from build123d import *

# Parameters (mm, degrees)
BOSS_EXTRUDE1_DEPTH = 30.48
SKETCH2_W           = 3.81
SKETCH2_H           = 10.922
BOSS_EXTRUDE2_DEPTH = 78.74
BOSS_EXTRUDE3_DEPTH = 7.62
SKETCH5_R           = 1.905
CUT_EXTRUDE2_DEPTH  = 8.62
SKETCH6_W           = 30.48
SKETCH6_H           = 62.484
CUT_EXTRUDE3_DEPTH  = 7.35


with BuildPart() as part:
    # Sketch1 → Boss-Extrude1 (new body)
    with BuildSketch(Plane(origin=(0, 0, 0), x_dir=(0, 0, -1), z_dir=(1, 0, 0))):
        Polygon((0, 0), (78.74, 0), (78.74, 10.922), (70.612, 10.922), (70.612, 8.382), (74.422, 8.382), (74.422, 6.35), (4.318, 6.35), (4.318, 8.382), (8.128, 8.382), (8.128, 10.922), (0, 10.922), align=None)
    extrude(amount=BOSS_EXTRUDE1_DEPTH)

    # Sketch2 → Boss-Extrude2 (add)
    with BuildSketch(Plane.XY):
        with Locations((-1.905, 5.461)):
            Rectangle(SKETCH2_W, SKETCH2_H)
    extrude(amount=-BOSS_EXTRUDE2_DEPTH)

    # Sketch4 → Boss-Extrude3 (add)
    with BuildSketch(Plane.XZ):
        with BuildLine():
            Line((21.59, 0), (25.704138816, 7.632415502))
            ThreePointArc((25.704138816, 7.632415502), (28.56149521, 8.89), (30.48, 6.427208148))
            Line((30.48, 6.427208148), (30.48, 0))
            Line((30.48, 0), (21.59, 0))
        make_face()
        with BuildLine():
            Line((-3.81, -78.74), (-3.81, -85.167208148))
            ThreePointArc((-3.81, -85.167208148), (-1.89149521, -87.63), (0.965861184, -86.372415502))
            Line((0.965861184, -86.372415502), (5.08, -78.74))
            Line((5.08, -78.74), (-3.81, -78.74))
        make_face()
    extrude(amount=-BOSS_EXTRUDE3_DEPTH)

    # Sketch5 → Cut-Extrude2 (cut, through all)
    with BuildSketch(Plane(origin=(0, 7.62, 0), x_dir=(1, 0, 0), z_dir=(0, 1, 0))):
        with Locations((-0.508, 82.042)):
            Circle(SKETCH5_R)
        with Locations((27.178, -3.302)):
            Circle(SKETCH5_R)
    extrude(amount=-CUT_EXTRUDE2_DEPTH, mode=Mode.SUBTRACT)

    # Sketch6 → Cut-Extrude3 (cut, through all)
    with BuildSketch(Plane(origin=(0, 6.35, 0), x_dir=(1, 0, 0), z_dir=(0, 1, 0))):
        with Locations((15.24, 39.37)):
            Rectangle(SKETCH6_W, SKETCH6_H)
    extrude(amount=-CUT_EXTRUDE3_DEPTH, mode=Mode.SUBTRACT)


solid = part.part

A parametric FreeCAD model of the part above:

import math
import FreeCAD as App
import Part
import Sketcher
from FreeCAD import Vector
Q = App.Units.Quantity


def add_polygon(sketch, points):
    """Adds a closed chain of lines whose ends are joined by coincident constraints."""
    first, n = sketch.GeometryCount, len(points)
    for a, b in zip(points, points[1:] + points[:1]):
        sketch.addGeometry(Part.LineSegment(App.Vector(*a, 0), App.Vector(*b, 0)), False)
    for i in range(n):
        sketch.addConstraint(Sketcher.Constraint("Coincident", first + i, 2, first + (i + 1) % n, 1))

doc = App.newDocument("Part")
body = doc.addObject("PartDesign::Body", "Body")

# Sketch on YZ plane
sketch1 = doc.addObject("Sketcher::SketchObject", "Sketch")
body.addObject(sketch1)
sketch1.AttachmentSupport = (doc.YZ_Plane, [""])
sketch1.MapMode = "FlatFace"
add_polygon(sketch1, [(0, 0), (0, -78.7), (10.9, -78.7), (10.9, -70.6), (8.4, -70.6), (8.4, -74.4), (6.3, -74.4), (6.3, -4.3), (8.4, -4.3), (8.4, -8.1), (10.9, -8.1), (10.9, 0)])  # lines 0-11
sketch1.addConstraint(Sketcher.Constraint("Vertical", 0))
sketch1.addConstraint(Sketcher.Constraint("Horizontal", 1))
sketch1.addConstraint(Sketcher.Constraint("Vertical", 2))
sketch1.addConstraint(Sketcher.Constraint("Horizontal", 3))
sketch1.addConstraint(Sketcher.Constraint("Vertical", 4))
sketch1.addConstraint(Sketcher.Constraint("Horizontal", 5))
sketch1.addConstraint(Sketcher.Constraint("Vertical", 6))
sketch1.addConstraint(Sketcher.Constraint("Horizontal", 7))
sketch1.addConstraint(Sketcher.Constraint("Vertical", 8))
sketch1.addConstraint(Sketcher.Constraint("Horizontal", 9))
sketch1.addConstraint(Sketcher.Constraint("Vertical", 10))
sketch1.addConstraint(Sketcher.Constraint("Horizontal", 11))
sketch1.addConstraint(Sketcher.Constraint("Coincident", 11, 2, -1, 1))
sketch1.addConstraint(Sketcher.Constraint("Vertical", 4, 2, 7, 2))
sketch1.addConstraint(Sketcher.Constraint("Vertical", 2, 2, 9, 2))
sketch1.addConstraint(Sketcher.Constraint("Equal", 4, 8))
sketch1.addConstraint(Sketcher.Constraint("Equal", 2, 10))
sketch1.addConstraint(Sketcher.Constraint("DistanceX", 3, 2, 3, 1, Q("0.1 in")))
sketch1.addConstraint(Sketcher.Constraint("DistanceY", 0, 2, 0, 1, Q("3.1 in")))
sketch1.addConstraint(Sketcher.Constraint("DistanceX", 1, 1, 1, 2, Q("0.43 in")))
sketch1.addConstraint(Sketcher.Constraint("DistanceX", 5, 2, 5, 1, Q("0.08 in")))
sketch1.addConstraint(Sketcher.Constraint("DistanceY", 2, 1, 2, 2, Q("0.32 in")))
sketch1.addConstraint(Sketcher.Constraint("DistanceY", 4, 2, 4, 1, Q("0.15 in")))
pad1 = doc.addObject("PartDesign::Pad", "Pad")
body.addObject(pad1)
pad1.Profile = sketch1
pad1.Length = Q("1.2 in")

# Sketch on XY plane
sketch2 = doc.addObject("Sketcher::SketchObject", "Sketch001")
body.addObject(sketch2)
sketch2.AttachmentSupport = (doc.XY_Plane, [""])
sketch2.MapMode = "FlatFace"
add_polygon(sketch2, [(-3.8, 10.9), (-3.8, 0), (0, 0), (0, 10.9)])  # lines 0-3
sketch2.addConstraint(Sketcher.Constraint("Vertical", 0))
sketch2.addConstraint(Sketcher.Constraint("Horizontal", 1))
sketch2.addConstraint(Sketcher.Constraint("Vertical", 2))
sketch2.addConstraint(Sketcher.Constraint("Horizontal", 3))
sketch2.addConstraint(Sketcher.Constraint("Coincident", 1, 2, -1, 1))
sketch2.addConstraint(Sketcher.Constraint("DistanceX", 1, 1, 1, 2, Q("0.15 in")))
sketch2.addConstraint(Sketcher.Constraint("DistanceY", 0, 2, 0, 1, Q("0.43 in")))
pad2 = doc.addObject("PartDesign::Pad", "Pad001")
body.addObject(pad2)
pad2.Profile = sketch2
pad2.Length = Q("3.1 in")
pad2.Reversed = True

# Sketch on XZ plane
sketch3 = doc.addObject("Sketcher::SketchObject", "Sketch002")
body.addObject(sketch3)
sketch3.AttachmentSupport = (doc.XZ_Plane, [""])
sketch3.MapMode = "FlatFace"
sketch3.addGeometry(Part.LineSegment(Vector(25.7, 7.6, 0), Vector(21.6, 0, 0)), False)
sketch3.addGeometry(Part.LineSegment(Vector(21.6, 0, 0), Vector(30.5, 0, 0)), False)
sketch3.addGeometry(Part.LineSegment(Vector(30.5, 0, 0), Vector(30.5, 6.4, 0)), False)
sketch3.addGeometry(Part.ArcOfCircle(Part.Circle(Vector(27.9, 6.4, 0), Vector(0, 0, 1), 2.5), math.radians(0), math.radians(152)), False)
sketch3.addGeometry(Part.LineSegment(Vector(-3.8, -78.7, 0), Vector(-3.8, -85.2, 0)), False)
sketch3.addGeometry(Part.ArcOfCircle(Part.Circle(Vector(-1.3, -85.2, 0), Vector(0, 0, 1), 2.5), math.radians(180), math.radians(332)), False)
sketch3.addGeometry(Part.LineSegment(Vector(1, -86.4, 0), Vector(5.1, -78.7, 0)), False)
sketch3.addGeometry(Part.LineSegment(Vector(5.1, -78.7, 0), Vector(-3.8, -78.7, 0)), False)
sketch3.addConstraint(Sketcher.Constraint("Coincident", 0, 2, 1, 1))
sketch3.addConstraint(Sketcher.Constraint("Coincident", 1, 2, 2, 1))
sketch3.addConstraint(Sketcher.Constraint("Tangent", 2, 2, 3, 1))
sketch3.addConstraint(Sketcher.Constraint("Tangent", 3, 2, 0, 1))
sketch3.addConstraint(Sketcher.Constraint("Tangent", 4, 2, 5, 1))
sketch3.addConstraint(Sketcher.Constraint("Tangent", 5, 2, 6, 1))
sketch3.addConstraint(Sketcher.Constraint("Coincident", 6, 2, 7, 1))
sketch3.addConstraint(Sketcher.Constraint("Coincident", 7, 2, 4, 1))
sketch3.addConstraint(Sketcher.Constraint("Horizontal", 1))
sketch3.addConstraint(Sketcher.Constraint("Vertical", 2))
sketch3.addConstraint(Sketcher.Constraint("Vertical", 4))
sketch3.addConstraint(Sketcher.Constraint("Horizontal", 7))
sketch3.addConstraint(Sketcher.Constraint("Equal", 3, 5))
sketch3.addConstraint(Sketcher.Constraint("PointOnObject", 0, 2, -1))
sketch3.addConstraint(Sketcher.Constraint("Parallel", 0, 6))
sketch3.addConstraint(Sketcher.Constraint("Equal", 1, 7))
sketch3.addConstraint(Sketcher.Constraint("Radius", 3, Q("0.1 in")))
sketch3.addConstraint(Sketcher.Constraint("DistanceX", 4, 2, 0, 2, Q("1 in")))
sketch3.addConstraint(Sketcher.Constraint("DistanceX", 1, 1, 1, 2, Q("0.35 in")))
sketch3.addConstraint(Sketcher.Constraint("DistanceX", -1, 1, 3, 3, Q("1.1 in")))
sketch3.addConstraint(Sketcher.Constraint("DistanceY", 6, 2, -1, 1, Q("3.1 in")))
sketch3.addConstraint(Sketcher.Constraint("DistanceY", 2, 1, 2, 2, 6.427208))
pad3 = doc.addObject("PartDesign::Pad", "Pad002")
body.addObject(pad3)
pad3.Profile = sketch3
pad3.Length = Q("0.3 in")
pad3.Reversed = True

# Sketch on XZ plane
sketch4 = doc.addObject("Sketcher::SketchObject", "Sketch003")
body.addObject(sketch4)
sketch4.AttachmentSupport = (doc.XZ_Plane, [""])
sketch4.MapMode = "FlatFace"
sketch4.AttachmentOffset = App.Placement(Vector(0, 0, -0.3 * 25.4), App.Rotation())
sketch4.addGeometry(Part.Circle(Vector(-0.5, -82, 0), Vector(0, 0, 1), 1.9), False)
sketch4.addGeometry(Part.Circle(Vector(27.2, 3.3, 0), Vector(0, 0, 1), 1.9), False)
sketch4.addConstraint(Sketcher.Constraint("Equal", 0, 1))
sketch4.addConstraint(Sketcher.Constraint("Diameter", 0, Q("0.15 in")))
sketch4.addConstraint(Sketcher.Constraint("DistanceX", 0, 3, -1, 1, Q("0.02 in")))
sketch4.addConstraint(Sketcher.Constraint("DistanceY", 0, 3, -1, 1, Q("3.23 in")))
sketch4.addConstraint(Sketcher.Constraint("DistanceX", -1, 1, 1, 3, Q("1.07 in")))
sketch4.addConstraint(Sketcher.Constraint("DistanceY", -1, 1, 1, 3, Q("0.13 in")))
pocket1 = doc.addObject("PartDesign::Pocket", "Pocket")
body.addObject(pocket1)
pocket1.Profile = sketch4
pocket1.Type = "ThroughAll"
pocket1.Reversed = True

# Sketch on XZ plane
sketch5 = doc.addObject("Sketcher::SketchObject", "Sketch004")
body.addObject(sketch5)
sketch5.AttachmentSupport = (doc.XZ_Plane, [""])
sketch5.MapMode = "FlatFace"
sketch5.AttachmentOffset = App.Placement(Vector(0, 0, -0.25 * 25.4), App.Rotation())
add_polygon(sketch5, [(0, -71), (0, -8), (30, -8), (30, -71)])  # lines 0-3
sketch5.addConstraint(Sketcher.Constraint("Vertical", 0))
sketch5.addConstraint(Sketcher.Constraint("Horizontal", 1))
sketch5.addConstraint(Sketcher.Constraint("Vertical", 2))
sketch5.addConstraint(Sketcher.Constraint("Horizontal", 3))
sketch5.addConstraint(Sketcher.Constraint("PointOnObject", 0, 2, -2))
sketch5.addConstraint(Sketcher.Constraint("DistanceX", 1, 1, 1, 2, Q("1.2 in")))
sketch5.addConstraint(Sketcher.Constraint("DistanceY", 0, 1, 0, 2, Q("2.46 in")))
sketch5.addConstraint(Sketcher.Constraint("DistanceY", 0, 2, -1, 1, Q("0.32 in")))
pocket2 = doc.addObject("PartDesign::Pocket", "Pocket001")
body.addObject(pocket2)
pocket2.Profile = sketch5
pocket2.Type = "ThroughAll"
pocket2.Reversed = True

doc.recompute()
